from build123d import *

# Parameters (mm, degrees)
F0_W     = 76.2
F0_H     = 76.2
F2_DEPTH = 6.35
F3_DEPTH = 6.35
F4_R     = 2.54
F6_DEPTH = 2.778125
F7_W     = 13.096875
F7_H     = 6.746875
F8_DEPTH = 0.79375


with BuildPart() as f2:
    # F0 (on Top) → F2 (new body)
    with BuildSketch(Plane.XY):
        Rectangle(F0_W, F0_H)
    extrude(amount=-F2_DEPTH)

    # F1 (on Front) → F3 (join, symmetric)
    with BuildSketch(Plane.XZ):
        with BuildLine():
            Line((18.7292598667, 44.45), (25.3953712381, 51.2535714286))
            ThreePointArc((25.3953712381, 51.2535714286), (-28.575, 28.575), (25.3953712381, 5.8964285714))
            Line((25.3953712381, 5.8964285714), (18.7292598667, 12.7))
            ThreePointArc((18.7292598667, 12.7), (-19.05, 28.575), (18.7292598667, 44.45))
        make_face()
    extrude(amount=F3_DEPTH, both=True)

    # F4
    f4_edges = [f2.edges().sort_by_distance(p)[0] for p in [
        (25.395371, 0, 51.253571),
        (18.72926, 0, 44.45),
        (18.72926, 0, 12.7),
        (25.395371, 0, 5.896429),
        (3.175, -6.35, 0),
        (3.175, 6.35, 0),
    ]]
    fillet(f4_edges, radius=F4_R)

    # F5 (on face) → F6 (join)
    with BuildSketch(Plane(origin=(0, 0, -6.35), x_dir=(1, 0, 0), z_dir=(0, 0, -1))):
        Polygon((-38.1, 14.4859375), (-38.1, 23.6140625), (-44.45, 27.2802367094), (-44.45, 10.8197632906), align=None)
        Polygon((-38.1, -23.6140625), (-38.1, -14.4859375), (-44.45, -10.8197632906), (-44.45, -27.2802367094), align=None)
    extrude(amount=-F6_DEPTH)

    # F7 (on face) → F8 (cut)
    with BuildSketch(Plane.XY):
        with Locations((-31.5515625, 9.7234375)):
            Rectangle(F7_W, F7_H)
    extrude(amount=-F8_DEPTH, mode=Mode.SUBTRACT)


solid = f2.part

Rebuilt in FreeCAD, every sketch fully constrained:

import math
import FreeCAD as App
import Part
import Sketcher

V = App.Vector
Q = App.Units.Quantity


def edges_at(feature, points):
    """Names of the edges that pass closest to the given points."""
    edges = feature.Shape.Edges
    near = lambda p: min(range(len(edges)), key=lambda i: edges[i].distToShape(Part.Vertex(*p))[0])
    return sorted({f"Edge{near(p) + 1}" for p in points})


def add_polygon(sketch, points):
    """Adds a closed chain of lines whose ends are joined by coincident constraints."""
    first, n = sketch.GeometryCount, len(points)
    for a, b in zip(points, points[1:] + points[:1]):
        sketch.addGeometry(Part.LineSegment(App.Vector(*a, 0), App.Vector(*b, 0)), False)
    for i in range(n):
        sketch.addConstraint(Sketcher.Constraint("Coincident", first + i, 2, first + (i + 1) % n, 1))

doc = App.newDocument("Part")
params = doc.addObject("Spreadsheet::Sheet", "Params")
for row, (alias, value) in enumerate([
    ("sketch1_width", "3 in"),
    ("pad1_length", "0.25 in"),
    ("sketch2_radius", "1.25 in"),
    ("sketch2_radius2", "0.875 in"),
    ("pad2_length", "0.5 in"),
    ("fillet_radius", "0.1 in"),
    ("sketch3_height", "0.359375 in"),
    ("pad3_length", "0.109375 in"),
    ("sketch4_width", "0.515625 in"),
    ("sketch4_height", "0.265625 in"),
    ("pocket1_length", "0.03125 in"),
], start=1):
    params.set(f"A{row}", alias)
    params.set(f"B{row}", "=" + value)
    params.setAlias(f"B{row}", alias)

body = doc.addObject("PartDesign::Body", "Body")

# Sketch on XY plane
sketch1 = body.newObject("Sketcher::SketchObject", "Sketch")
sketch1.AttachmentSupport = (doc.getObject("XY_Plane"), [""])
sketch1.MapMode = "FlatFace"
add_polygon(sketch1, [(-38.1, 38.1), (-38.1, -38.1), (38.1, -38.1), (38.1, 38.1)])  # lines 0-3
sketch1.addConstraint(Sketcher.Constraint("Vertical", 0))
sketch1.addConstraint(Sketcher.Constraint("Horizontal", 1))
sketch1.addConstraint(Sketcher.Constraint("Vertical", 2))
sketch1.addConstraint(Sketcher.Constraint("Horizontal", 3))
sketch1.addConstraint(Sketcher.Constraint("Symmetric", 0, 2, 2, 2, -1, 1))
sketch1.addConstraint(Sketcher.Constraint("Equal", 3, 0))
sketch1.addConstraint(Sketcher.Constraint("DistanceX", 1, 1, 1, 2, Q("3 in")))
sketch1.setExpression("Constraints[10]", "Params.sketch1_width")
pad1 = body.newObject("PartDesign::Pad", "Pad")
pad1.Profile = sketch1
pad1.setExpression("Length", "Params.pad1_length")
pad1.Reversed = True

# Sketch on XZ plane
sketch2 = body.newObject("Sketcher::SketchObject", "Sketch001")
sketch2.AttachmentSupport = (doc.getObject("XZ_Plane"), [""])
sketch2.MapMode = "FlatFace"
sketch2.addGeometry(Part.LineSegment(V(18.72926, 44.45, 0), V(25.395371, 51.253571, 0)), False)
sketch2.addGeometry(Part.ArcOfCircle(Part.Circle(V(3.175, 28.575, 0), V(0, 0, 1), 31.75), math.radians(45.584691), math.radians(314.415309)), False)
sketch2.addGeometry(Part.LineSegment(V(25.395371, 5.896429, 0), V(18.72926, 12.7, 0)), False)
sketch2.addGeometry(Part.ArcOfCircle(Part.Circle(V(3.175, 28.575, 0), V(0, 0, 1), 22.225), math.radians(45.584691), math.radians(314.415309)), False)
sketch2.addConstraint(Sketcher.Constraint("Coincident", 0, 2, 1, 1))
sketch2.addConstraint(Sketcher.Constraint("Coincident", 1, 2, 2, 1))
sketch2.addConstraint(Sketcher.Constraint("Coincident", 2, 2, 3, 2))
sketch2.addConstraint(Sketcher.Constraint("Coincident", 3, 1, 0, 1))
sketch2.addConstraint(Sketcher.Constraint("Coincident", 3, 3, 1, 3))
sketch2.addConstraint(Sketcher.Constraint("Vertical", 0, 2, 1, 2))
sketch2.addConstraint(Sketcher.Constraint("Vertical", 2, 2, 3, 1))
sketch2.addConstraint(Sketcher.Constraint("Radius", 1, Q("1.25 in")))
sketch2.addConstraint(Sketcher.Constraint("Radius", 3, Q("0.875 in")))
sketch2.addConstraint(Sketcher.Constraint("DistanceY", -1, 1, 2, 2, Q("0.5 in")))
sketch2.addConstraint(Sketcher.Constraint("DistanceY", -1, 1, 3, 1, Q("1.75 in")))
sketch2.addConstraint(Sketcher.Constraint("DistanceX", -1, 1, 1, 3, Q("0.125 in")))
sketch2.addConstraint(Sketcher.Constraint("DistanceX", -1, 1, 0, 2, Q("25.395371 mm")))
sketch2.setExpression("Constraints[7]", "Params.sketch2_radius")
sketch2.setExpression("Constraints[8]", "Params.sketch2_radius2")
pad2 = body.newObject("PartDesign::Pad", "Pad001")
pad2.Profile = sketch2
pad2.setExpression("Length", "Params.pad2_length")
pad2.Midplane = True
doc.recompute()

fillet = body.newObject("PartDesign::Fillet", "Fillet")
fillet.Base = (pad2, edges_at(pad2, [
    (25.395, 0, 51.254),
    (18.729, 0, 44.45),
    (18.729, 0, 12.7),
    (25.395, 0, 5.896),
    (3.175, -6.35, 0),
    (3.175, 6.35, 0),
]))
fillet.setExpression("Radius", "Params.fillet_radius")

# Sketch on XY plane
sketch3 = body.newObject("Sketcher::SketchObject", "Sketch002")
sketch3.AttachmentSupport = (doc.getObject("XY_Plane"), [""])
sketch3.MapMode = "FlatFace"
sketch3.AttachmentOffset = App.Placement(V(0, 0, -0.25 * 25.4), App.Rotation())
add_polygon(sketch3, [(-38.1, -14.485938), (-38.1, -23.614062), (-44.45, -27.280237), (-44.45, -10.819763)])  # lines 0-3
add_polygon(sketch3, [(-38.1, 23.614062), (-38.1, 14.485938), (-44.45, 10.819763), (-44.45, 27.280237)])  # lines 4-7
sketch3.addConstraint(Sketcher.Constraint("Vertical", 0))
sketch3.addConstraint(Sketcher.Constraint("Vertical", 2))
sketch3.addConstraint(Sketcher.Constraint("Vertical", 4))
sketch3.addConstraint(Sketcher.Constraint("Vertical", 6))
sketch3.addConstraint(Sketcher.Constraint("Symmetric", 3, 2, 4, 2, -1))
sketch3.addConstraint(Sketcher.Constraint("Symmetric", 2, 2, 5, 2, -1))
sketch3.addConstraint(Sketcher.Constraint("Parallel", 1, 5))
sketch3.addConstraint(Sketcher.Constraint("Parallel", 3, 7))
sketch3.addConstraint(Sketcher.Constraint("Equal", 0, 4))
sketch3.addConstraint(Sketcher.Constraint("Angle", 1, Q("-150 deg")))
sketch3.addConstraint(Sketcher.Constraint("DistanceX", 0, 2, -1, 1, Q("1.5 in")))
sketch3.addConstraint(Sketcher.Constraint("DistanceY", 0, 2, 4, 2, Q("1.5 in")))
sketch3.addConstraint(Sketcher.Constraint("DistanceY", 0, 2, 0, 1, Q("0.359375 in")))
sketch3.addConstraint(Sketcher.Constraint("DistanceX", 1, 2, -1, 1, Q("1.75 in")))
sketch3.setExpression("Constraints[20]", "Params.sketch3_height")
pad3 = body.newObject("PartDesign::Pad", "Pad002")
pad3.Profile = sketch3
pad3.setExpression("Length", "Params.pad3_length")

# Sketch on XY plane
sketch4 = body.newObject("Sketcher::SketchObject", "Sketch003")
sketch4.AttachmentSupport = (doc.getObject("XY_Plane"), [""])
sketch4.MapMode = "FlatFace"
add_polygon(sketch4, [(-38.1, 13.096875), (-38.1, 6.35), (-25.003125, 6.35), (-25.003125, 13.096875)])  # lines 0-3
sketch4.addConstraint(Sketcher.Constraint("Vertical", 0))
sketch4.addConstraint(Sketcher.Constraint("Horizontal", 1))
sketch4.addConstraint(Sketcher.Constraint("Vertical", 2))
sketch4.addConstraint(Sketcher.Constraint("Horizontal", 3))
sketch4.addConstraint(Sketcher.Constraint("DistanceX", 0, 2, -1, 1, Q("1.5 in")))
sketch4.addConstraint(Sketcher.Constraint("DistanceX", 1, 1, 1, 2, Q("0.515625 in")))
sketch4.addConstraint(Sketcher.Constraint("DistanceY", 0, 2, 0, 1, Q("0.265625 in")))
sketch4.addConstraint(Sketcher.Constraint("DistanceY", -1, 1, 0, 2, Q("0.25 in")))
sketch4.setExpression("Constraints[9]", "Params.sketch4_width")
sketch4.setExpression("Constraints[10]", "Params.sketch4_height")
pocket1 = body.newObject("PartDesign::Pocket", "Pocket")
pocket1.Profile = sketch4
pocket1.setExpression("Length", "Params.pocket1_length")

doc.recompute()
